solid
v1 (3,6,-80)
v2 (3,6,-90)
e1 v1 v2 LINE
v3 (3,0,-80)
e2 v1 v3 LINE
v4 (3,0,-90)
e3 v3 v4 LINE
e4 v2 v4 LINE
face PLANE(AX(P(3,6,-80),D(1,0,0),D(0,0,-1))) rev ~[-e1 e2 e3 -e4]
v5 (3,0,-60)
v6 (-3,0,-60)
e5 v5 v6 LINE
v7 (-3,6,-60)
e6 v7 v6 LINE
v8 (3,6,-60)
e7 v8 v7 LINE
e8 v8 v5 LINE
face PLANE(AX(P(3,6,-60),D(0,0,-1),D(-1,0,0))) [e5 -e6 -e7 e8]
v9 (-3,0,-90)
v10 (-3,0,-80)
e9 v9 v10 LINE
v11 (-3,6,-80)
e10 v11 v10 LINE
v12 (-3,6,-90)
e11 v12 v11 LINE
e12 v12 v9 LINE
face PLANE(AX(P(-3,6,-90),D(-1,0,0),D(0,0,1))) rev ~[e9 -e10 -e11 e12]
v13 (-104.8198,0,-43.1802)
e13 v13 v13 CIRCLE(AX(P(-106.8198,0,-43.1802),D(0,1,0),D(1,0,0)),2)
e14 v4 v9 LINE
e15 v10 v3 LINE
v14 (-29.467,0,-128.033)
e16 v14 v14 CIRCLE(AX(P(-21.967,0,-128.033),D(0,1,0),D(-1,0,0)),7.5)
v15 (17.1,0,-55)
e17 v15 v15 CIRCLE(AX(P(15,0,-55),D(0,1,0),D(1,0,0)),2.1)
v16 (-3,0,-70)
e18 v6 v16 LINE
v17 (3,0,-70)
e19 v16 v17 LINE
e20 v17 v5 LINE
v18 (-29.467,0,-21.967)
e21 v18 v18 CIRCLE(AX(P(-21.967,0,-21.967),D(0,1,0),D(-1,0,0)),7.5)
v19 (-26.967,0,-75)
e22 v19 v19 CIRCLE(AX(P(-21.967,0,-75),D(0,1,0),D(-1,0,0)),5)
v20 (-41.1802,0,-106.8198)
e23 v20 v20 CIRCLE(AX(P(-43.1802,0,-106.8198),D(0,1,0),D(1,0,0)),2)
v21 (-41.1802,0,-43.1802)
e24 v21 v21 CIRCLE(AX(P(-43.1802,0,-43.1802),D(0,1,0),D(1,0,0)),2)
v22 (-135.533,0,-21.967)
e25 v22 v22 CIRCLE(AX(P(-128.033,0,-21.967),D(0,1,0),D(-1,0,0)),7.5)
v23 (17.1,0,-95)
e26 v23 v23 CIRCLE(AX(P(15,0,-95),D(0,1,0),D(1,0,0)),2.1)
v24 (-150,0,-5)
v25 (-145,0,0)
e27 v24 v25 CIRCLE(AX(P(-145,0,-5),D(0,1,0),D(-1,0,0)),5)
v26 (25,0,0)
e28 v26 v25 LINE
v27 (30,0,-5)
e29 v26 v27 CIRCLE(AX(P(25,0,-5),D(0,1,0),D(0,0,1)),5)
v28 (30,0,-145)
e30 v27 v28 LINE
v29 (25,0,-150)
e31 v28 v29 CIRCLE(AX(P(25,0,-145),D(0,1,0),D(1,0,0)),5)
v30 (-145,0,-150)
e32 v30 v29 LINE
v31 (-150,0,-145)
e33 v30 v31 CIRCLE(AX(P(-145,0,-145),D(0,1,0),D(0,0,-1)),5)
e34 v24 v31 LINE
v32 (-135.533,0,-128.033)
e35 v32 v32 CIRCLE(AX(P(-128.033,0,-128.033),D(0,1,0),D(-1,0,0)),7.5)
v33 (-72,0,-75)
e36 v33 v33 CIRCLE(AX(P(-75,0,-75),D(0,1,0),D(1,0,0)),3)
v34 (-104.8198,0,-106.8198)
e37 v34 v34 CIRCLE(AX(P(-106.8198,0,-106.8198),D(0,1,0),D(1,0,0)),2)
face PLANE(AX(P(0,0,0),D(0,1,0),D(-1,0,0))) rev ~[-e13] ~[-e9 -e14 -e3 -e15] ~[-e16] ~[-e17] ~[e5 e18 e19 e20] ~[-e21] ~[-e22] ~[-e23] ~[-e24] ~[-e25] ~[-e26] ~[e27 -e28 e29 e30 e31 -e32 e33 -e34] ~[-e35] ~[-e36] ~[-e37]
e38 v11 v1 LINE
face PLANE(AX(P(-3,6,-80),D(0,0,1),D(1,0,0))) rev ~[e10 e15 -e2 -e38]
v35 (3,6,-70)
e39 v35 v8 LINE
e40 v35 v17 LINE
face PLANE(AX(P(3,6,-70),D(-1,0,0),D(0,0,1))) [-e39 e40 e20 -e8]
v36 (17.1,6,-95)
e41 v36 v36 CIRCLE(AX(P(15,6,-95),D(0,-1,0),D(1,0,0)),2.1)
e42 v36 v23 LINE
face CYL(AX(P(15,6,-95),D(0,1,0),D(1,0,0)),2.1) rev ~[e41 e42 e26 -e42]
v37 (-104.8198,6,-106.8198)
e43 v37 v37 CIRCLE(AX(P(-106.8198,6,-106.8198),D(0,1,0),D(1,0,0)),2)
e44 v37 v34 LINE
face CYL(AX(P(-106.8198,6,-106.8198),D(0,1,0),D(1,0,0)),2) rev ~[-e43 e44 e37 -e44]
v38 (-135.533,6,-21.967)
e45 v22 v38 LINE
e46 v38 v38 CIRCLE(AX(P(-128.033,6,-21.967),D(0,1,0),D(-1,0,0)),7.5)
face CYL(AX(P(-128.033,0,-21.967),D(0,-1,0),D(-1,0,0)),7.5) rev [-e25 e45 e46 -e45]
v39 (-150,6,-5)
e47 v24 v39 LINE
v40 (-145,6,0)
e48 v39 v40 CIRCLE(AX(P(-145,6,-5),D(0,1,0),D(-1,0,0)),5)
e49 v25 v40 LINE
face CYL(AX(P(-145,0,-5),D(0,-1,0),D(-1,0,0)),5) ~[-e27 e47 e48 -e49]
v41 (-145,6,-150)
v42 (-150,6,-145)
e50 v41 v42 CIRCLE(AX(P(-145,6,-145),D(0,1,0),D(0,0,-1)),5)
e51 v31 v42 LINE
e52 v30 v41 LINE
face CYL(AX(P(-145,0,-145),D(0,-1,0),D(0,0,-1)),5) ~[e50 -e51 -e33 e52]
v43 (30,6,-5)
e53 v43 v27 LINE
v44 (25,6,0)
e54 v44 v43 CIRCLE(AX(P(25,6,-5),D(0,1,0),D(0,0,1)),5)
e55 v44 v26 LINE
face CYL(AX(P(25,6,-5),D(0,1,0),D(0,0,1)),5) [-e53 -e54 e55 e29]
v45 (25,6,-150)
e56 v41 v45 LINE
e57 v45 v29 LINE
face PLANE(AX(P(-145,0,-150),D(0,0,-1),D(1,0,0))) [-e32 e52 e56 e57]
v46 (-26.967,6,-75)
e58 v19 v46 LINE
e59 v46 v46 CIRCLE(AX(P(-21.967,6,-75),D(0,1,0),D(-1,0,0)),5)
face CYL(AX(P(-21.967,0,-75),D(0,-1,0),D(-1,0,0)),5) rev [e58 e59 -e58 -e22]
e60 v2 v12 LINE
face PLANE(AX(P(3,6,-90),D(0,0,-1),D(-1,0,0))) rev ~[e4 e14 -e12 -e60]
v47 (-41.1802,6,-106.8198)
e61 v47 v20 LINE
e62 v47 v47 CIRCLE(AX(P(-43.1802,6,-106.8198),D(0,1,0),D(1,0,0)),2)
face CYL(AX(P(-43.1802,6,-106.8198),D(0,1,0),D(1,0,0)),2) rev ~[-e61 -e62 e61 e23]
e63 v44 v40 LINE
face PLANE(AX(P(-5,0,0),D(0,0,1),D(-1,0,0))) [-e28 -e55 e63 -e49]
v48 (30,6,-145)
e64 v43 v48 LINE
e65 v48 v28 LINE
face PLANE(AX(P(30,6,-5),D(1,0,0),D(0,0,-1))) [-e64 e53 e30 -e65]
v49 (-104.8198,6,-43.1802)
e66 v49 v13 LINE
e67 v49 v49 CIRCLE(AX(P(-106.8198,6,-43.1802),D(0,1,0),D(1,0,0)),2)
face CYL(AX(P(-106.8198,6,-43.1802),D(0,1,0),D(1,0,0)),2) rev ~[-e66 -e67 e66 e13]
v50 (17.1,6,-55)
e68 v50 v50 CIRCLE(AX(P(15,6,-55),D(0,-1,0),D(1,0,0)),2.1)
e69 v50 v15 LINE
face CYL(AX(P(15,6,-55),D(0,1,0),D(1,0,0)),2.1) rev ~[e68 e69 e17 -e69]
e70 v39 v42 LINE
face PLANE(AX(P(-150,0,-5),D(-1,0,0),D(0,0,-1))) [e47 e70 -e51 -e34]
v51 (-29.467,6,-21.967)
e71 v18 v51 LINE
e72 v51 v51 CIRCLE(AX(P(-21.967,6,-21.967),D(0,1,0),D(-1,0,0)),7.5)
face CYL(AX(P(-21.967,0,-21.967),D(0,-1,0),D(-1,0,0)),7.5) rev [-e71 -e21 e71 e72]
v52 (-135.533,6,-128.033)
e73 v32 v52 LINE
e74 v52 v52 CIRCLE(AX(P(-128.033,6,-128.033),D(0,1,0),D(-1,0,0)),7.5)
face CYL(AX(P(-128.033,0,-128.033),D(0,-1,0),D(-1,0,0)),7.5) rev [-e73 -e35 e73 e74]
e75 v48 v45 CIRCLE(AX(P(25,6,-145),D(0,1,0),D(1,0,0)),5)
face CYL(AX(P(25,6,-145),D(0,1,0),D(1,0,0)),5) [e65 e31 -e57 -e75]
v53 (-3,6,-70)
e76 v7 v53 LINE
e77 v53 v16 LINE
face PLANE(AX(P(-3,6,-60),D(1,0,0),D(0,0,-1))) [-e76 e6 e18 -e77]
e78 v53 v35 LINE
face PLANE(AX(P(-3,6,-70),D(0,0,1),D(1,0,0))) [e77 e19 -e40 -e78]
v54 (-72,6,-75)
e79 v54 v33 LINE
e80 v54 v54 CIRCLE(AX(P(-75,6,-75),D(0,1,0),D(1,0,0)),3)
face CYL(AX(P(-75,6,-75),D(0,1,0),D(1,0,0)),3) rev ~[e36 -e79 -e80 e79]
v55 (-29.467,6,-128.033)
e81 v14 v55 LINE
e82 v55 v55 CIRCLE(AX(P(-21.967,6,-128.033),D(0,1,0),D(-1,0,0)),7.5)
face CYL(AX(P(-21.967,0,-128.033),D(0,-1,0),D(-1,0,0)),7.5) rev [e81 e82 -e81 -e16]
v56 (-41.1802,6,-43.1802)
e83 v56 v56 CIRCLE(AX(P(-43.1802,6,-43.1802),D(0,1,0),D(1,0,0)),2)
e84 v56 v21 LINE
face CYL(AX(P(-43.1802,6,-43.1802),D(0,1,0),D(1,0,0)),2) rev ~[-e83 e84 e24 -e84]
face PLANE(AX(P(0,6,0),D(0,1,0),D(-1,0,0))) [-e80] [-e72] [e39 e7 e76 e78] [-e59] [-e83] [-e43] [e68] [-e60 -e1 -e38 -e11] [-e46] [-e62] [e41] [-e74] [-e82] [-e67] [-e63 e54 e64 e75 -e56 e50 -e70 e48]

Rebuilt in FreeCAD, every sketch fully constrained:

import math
import FreeCAD as App
import Part
import Sketcher
Q = App.Units.Quantity


def add_polygon(sketch, points):
    """Adds a closed chain of lines whose ends are joined by coincident constraints."""
    first, n = sketch.GeometryCount, len(points)
    for a, b in zip(points, points[1:] + points[:1]):
        sketch.addGeometry(Part.LineSegment(App.Vector(*a, 0), App.Vector(*b, 0)), False)
    for i in range(n):
        sketch.addConstraint(Sketcher.Constraint("Coincident", first + i, 2, first + (i + 1) % n, 1))

doc = App.newDocument("Part")
body = doc.addObject("PartDesign::Body", "Body")

sketch1 = body.newObject("Sketcher::SketchObject", "Sketch")
sketch1.AttachmentSupport = (doc.getObject("XZ_Plane"), [""])
sketch1.MapMode = "FlatFace"
sketch1.addGeometry(Part.LineSegment(App.Vector(-145, 0, 0), App.Vector(-5, 0, 0)), False)
sketch1.addGeometry(Part.ArcOfCircle(Part.Circle(App.Vector(-5, -5, 0), App.Vector(0, 0, 1), 5), math.radians(0), math.radians(90)), False)
sketch1.addGeometry(Part.LineSegment(App.Vector(0, -5, 0), App.Vector(0, -145, 0)), False)
sketch1.addGeometry(Part.ArcOfCircle(Part.Circle(App.Vector(-5, -145, 0), App.Vector(0, 0, 1), 5), math.radians(-90), math.radians(0)), False)
sketch1.addGeometry(Part.LineSegment(App.Vector(-5, -150, 0), App.Vector(-145, -150, 0)), False)
sketch1.addGeometry(Part.ArcOfCircle(Part.Circle(App.Vector(-145, -145, 0), App.Vector(0, 0, 1), 5), math.radians(180), math.radians(270)), False)
sketch1.addGeometry(Part.LineSegment(App.Vector(-150, -145, 0), App.Vector(-150, -5, 0)), False)
sketch1.addGeometry(Part.ArcOfCircle(Part.Circle(App.Vector(-145, -5, 0), App.Vector(0, 0, 1), 5), math.radians(90), math.radians(180)), False)
sketch1.addGeometry(Part.Circle(App.Vector(-21.967, -128.033, 0), App.Vector(0, 0, 1), 7.5), False)
sketch1.addGeometry(Part.Circle(App.Vector(-128.033, -128.033, 0), App.Vector(0, 0, 1), 7.5), False)
sketch1.addGeometry(Part.Circle(App.Vector(-21.967, -75, 0), App.Vector(0, 0, 1), 5), False)
sketch1.addGeometry(Part.Circle(App.Vector(-21.967, -21.967, 0), App.Vector(0, 0, 1), 7.5), False)
sketch1.addGeometry(Part.Circle(App.Vector(-128.033, -21.967, 0), App.Vector(0, 0, 1), 7.5), False)
sketch1.addConstraint(Sketcher.Constraint("Tangent", 0, 2, 1, 2))
sketch1.addConstraint(Sketcher.Constraint("Tangent", 1, 1, 2, 1))
sketch1.addConstraint(Sketcher.Constraint("Tangent", 2, 2, 3, 2))
sketch1.addConstraint(Sketcher.Constraint("Tangent", 3, 1, 4, 1))
sketch1.addConstraint(Sketcher.Constraint("Tangent", 4, 2, 5, 2))
sketch1.addConstraint(Sketcher.Constraint("Tangent", 5, 1, 6, 1))
sketch1.addConstraint(Sketcher.Constraint("Tangent", 6, 2, 7, 2))
sketch1.addConstraint(Sketcher.Constraint("Tangent", 7, 1, 0, 1))
sketch1.addConstraint(Sketcher.Constraint("Horizontal", 0))
sketch1.addConstraint(Sketcher.Constraint("Vertical", 2))
sketch1.addConstraint(Sketcher.Constraint("Horizontal", 4))
sketch1.addConstraint(Sketcher.Constraint("Vertical", 6))
sketch1.addConstraint(Sketcher.Constraint("Equal", 1, 3))
sketch1.addConstraint(Sketcher.Constraint("Equal", 3, 5))
sketch1.addConstraint(Sketcher.Constraint("Equal", 5, 7))
sketch1.addConstraint(Sketcher.Constraint("Equal", 8, 9))
sketch1.addConstraint(Sketcher.Constraint("Equal", 7, 10))
sketch1.addConstraint(Sketcher.Constraint("Equal", 9, 11))
sketch1.addConstraint(Sketcher.Constraint("Equal", 11, 12))
sketch1.addConstraint(Sketcher.Constraint("PointOnObject", 0, 2, -1))
sketch1.addConstraint(Sketcher.Constraint("PointOnObject", 1, 1, -2))
sketch1.addConstraint(Sketcher.Constraint("Horizontal", 8, 3, 9, 3))
sketch1.addConstraint(Sketcher.Constraint("Horizontal", 11, 3, 12, 3))
sketch1.addConstraint(Sketcher.Constraint("Vertical", 8, 3, 10, 3))
sketch1.addConstraint(Sketcher.Constraint("Vertical", 10, 3, 11, 3))
sketch1.addConstraint(Sketcher.Constraint("Vertical", 9, 3, 12, 3))
sketch1.addConstraint(Sketcher.Constraint("Equal", 4, 2))
sketch1.addConstraint(Sketcher.Constraint("Diameter", 8, Q("15 mm")))
sketch1.addConstraint(Sketcher.Constraint("Diameter", 10, Q("10 mm")))
sketch1.addConstraint(Sketcher.Constraint("DistanceY", 3, 1, -1, 1, Q("150 mm")))
sketch1.addConstraint(Sketcher.Constraint("DistanceY", 10, 3, -1, 1, Q("75 mm")))
sketch1.addConstraint(Sketcher.Constraint("DistanceX", 8, 3, -1, 1, Q("21.967 mm")))
sketch1.addConstraint(Sketcher.Constraint("DistanceY", 8, 3, -1, 1, Q("128.033 mm")))
sketch1.addConstraint(Sketcher.Constraint("DistanceX", 9, 3, -1, 1, Q("128.033 mm")))
sketch1.addConstraint(Sketcher.Constraint("DistanceY", 11, 3, -1, 1, Q("21.967 mm")))
pad1 = body.newObject("PartDesign::Pad", "Pad")
pad1.Profile = sketch1
pad1.Length = 6
pad1.Reversed = True

sketch2 = body.newObject("Sketcher::SketchObject", "Sketch001")
sketch2.AttachmentSupport = (doc.getObject("XZ_Plane"), [""])
sketch2.MapMode = "FlatFace"
sketch2.AttachmentOffset = App.Placement(App.Vector(0, 0, -6), App.Rotation())
sketch2.addGeometry(Part.Circle(App.Vector(-106.8198, -43.1802, 0), App.Vector(0, 0, 1), 2), False)
sketch2.addGeometry(Part.Circle(App.Vector(-106.8198, -106.8198, 0), App.Vector(0, 0, 1), 2), False)
sketch2.addGeometry(Part.Circle(App.Vector(-43.1802, -43.1802, 0), App.Vector(0, 0, 1), 2), False)
sketch2.addGeometry(Part.Circle(App.Vector(-43.1802, -106.8198, 0), App.Vector(0, 0, 1), 2), False)
sketch2.addGeometry(Part.Circle(App.Vector(-75, -75, 0), App.Vector(0, 0, 1), 3), False)
sketch2.addConstraint(Sketcher.Constraint("Equal", 0, 1))
sketch2.addConstraint(Sketcher.Constraint("Equal", 1, 2))
sketch2.addConstraint(Sketcher.Constraint("Equal", 2, 3))
sketch2.addConstraint(Sketcher.Constraint("Horizontal", 0, 3, 2, 3))
sketch2.addConstraint(Sketcher.Constraint("Horizontal", 1, 3, 3, 3))
sketch2.addConstraint(Sketcher.Constraint("Vertical", 0, 3, 1, 3))
sketch2.addConstraint(Sketcher.Constraint("Vertical", 2, 3, 3, 3))
sketch2.addConstraint(Sketcher.Constraint("Diameter", 0, Q("4 mm")))
sketch2.addConstraint(Sketcher.Constraint("Diameter", 4, Q("6 mm")))
sketch2.addConstraint(Sketcher.Constraint("DistanceX", 4, 3, -1, 1, Q("75 mm")))
sketch2.addConstraint(Sketcher.Constraint("DistanceY", 4, 3, -1, 1, Q("75 mm")))
sketch2.addConstraint(Sketcher.Constraint("DistanceX", 0, 3, -1, 1, Q("106.8198 mm")))
sketch2.addConstraint(Sketcher.Constraint("DistanceY", 0, 3, -1, 1, Q("43.1802 mm")))
sketch2.addConstraint(Sketcher.Constraint("DistanceY", 1, 3, -1, 1, Q("106.8198 mm")))
sketch2.addConstraint(Sketcher.Constraint("DistanceX", 2, 3, -1, 1, Q("43.1802 mm")))
pocket1 = body.newObject("PartDesign::Pocket", "Pocket")
pocket1.Profile = sketch2
pocket1.Length = 6
pocket1.Reversed = True

sketch3 = body.newObject("Sketcher::SketchObject", "Sketch002")
sketch3.AttachmentSupport = (doc.getObject("XZ_Plane"), [""])
sketch3.MapMode = "FlatFace"
sketch3.AttachmentOffset = App.Placement(App.Vector(0, 0, -6), App.Rotation())
sketch3.addGeometry(Part.LineSegment(App.Vector(-5, -150, 0), App.Vector(-5, 0, 0)), False)
sketch3.addGeometry(Part.LineSegment(App.Vector(-5, 0, 0), App.Vector(25, 0, 0)), False)
sketch3.addGeometry(Part.ArcOfCircle(Part.Circle(App.Vector(25, -5, 0), App.Vector(0, 0, 1), 5), math.radians(0), math.radians(90)), False)
sketch3.addGeometry(Part.LineSegment(App.Vector(30, -5, 0), App.Vector(30, -145, 0)), False)
sketch3.addGeometry(Part.ArcOfCircle(Part.Circle(App.Vector(25, -145, 0), App.Vector(0, 0, 1), 5), math.radians(-90), math.radians(0)), False)
sketch3.addGeometry(Part.LineSegment(App.Vector(25, -150, 0), App.Vector(-5, -150, 0)), False)
sketch3.addConstraint(Sketcher.Constraint("Coincident", 0, 2, 1, 1))
sketch3.addConstraint(Sketcher.Constraint("Tangent", 1, 2, 2, 2))
sketch3.addConstraint(Sketcher.Constraint("Tangent", 2, 1, 3, 1))
sketch3.addConstraint(Sketcher.Constraint("Tangent", 3, 2, 4, 2))
sketch3.addConstraint(Sketcher.Constraint("Tangent", 4, 1, 5, 1))
sketch3.addConstraint(Sketcher.Constraint("Coincident", 5, 2, 0, 1))
sketch3.addConstraint(Sketcher.Constraint("Vertical", 0))
sketch3.addConstraint(Sketcher.Constraint("Horizontal", 1))
sketch3.addConstraint(Sketcher.Constraint("Vertical", 3))
sketch3.addConstraint(Sketcher.Constraint("Horizontal", 5))
sketch3.addConstraint(Sketcher.Constraint("Equal", 2, 4))
sketch3.addConstraint(Sketcher.Constraint("PointOnObject", 0, 2, -1))
sketch3.addConstraint(Sketcher.Constraint("Radius", 2, Q("5 mm")))
sketch3.addConstraint(Sketcher.Constraint("DistanceY", 0, 1, 0, 2, Q("150 mm")))
sketch3.addConstraint(Sketcher.Constraint("DistanceX", 0, 2, -1, 1, Q("5 mm")))
sketch3.addConstraint(Sketcher.Constraint("DistanceX", 0, 2, 2, 1, Q("35 mm")))
pad2 = body.newObject("PartDesign::Pad", "Pad001")
pad2.Profile = sketch3
pad2.Length = 6

sketch4 = body.newObject("Sketcher::SketchObject", "Sketch003")
sketch4.AttachmentSupport = (doc.getObject("XZ_Plane"), [""])
sketch4.MapMode = "FlatFace"
sketch4.AttachmentOffset = App.Placement(App.Vector(0, 0, -6), App.Rotation())
add_polygon(sketch4, [(-3, -90), (-3, -80), (3, -80), (3, -90)])
add_polygon(sketch4, [(3, -70), (-3, -70), (-3, -60), (3, -60)])
sketch4.addGeometry(Part.Circle(App.Vector(15, -55, 0), App.Vector(0, 0, 1), 2.1), False)
sketch4.addGeometry(Part.Circle(App.Vector(15, -95, 0), App.Vector(0, 0, 1), 2.1), False)
sketch4.addConstraint(Sketcher.Constraint("Vertical", 0))
sketch4.addConstraint(Sketcher.Constraint("Horizontal", 1))
sketch4.addConstraint(Sketcher.Constraint("Vertical", 2))
sketch4.addConstraint(Sketcher.Constraint("Horizontal", 3))
sketch4.addConstraint(Sketcher.Constraint("Horizontal", 4))
sketch4.addConstraint(Sketcher.Constraint("Vertical", 5))
sketch4.addConstraint(Sketcher.Constraint("Horizontal", 6))
sketch4.addConstraint(Sketcher.Constraint("Vertical", 7))
sketch4.addConstraint(Sketcher.Constraint("Equal", 8, 9))
sketch4.addConstraint(Sketcher.Constraint("Vertical", 8, 3, 9, 3))
sketch4.addConstraint(Sketcher.Constraint("Vertical", 3, 2, 4, 2))
sketch4.addConstraint(Sketcher.Constraint("Vertical", 2, 2, 6, 2))
sketch4.addConstraint(Sketcher.Constraint("Equal", 2, 5))
sketch4.addConstraint(Sketcher.Constraint("Diameter", 8, Q("4.2 mm")))
sketch4.addConstraint(Sketcher.Constraint("DistanceX", 1, 1, 1, 2, Q("6 mm")))
sketch4.addConstraint(Sketcher.Constraint("DistanceY", 0, 1, 0, 2, Q("10 mm")))
sketch4.addConstraint(Sketcher.Constraint("DistanceY", 0, 2, 4, 2, Q("10 mm")))
sketch4.addConstraint(Sketcher.Constraint("DistanceX", -1, 1, 8, 3, Q("15 mm")))
sketch4.addConstraint(Sketcher.Constraint("DistanceY", 8, 3, -1, 1, Q("55 mm")))
sketch4.addConstraint(Sketcher.Constraint("DistanceY", 9, 3, -1, 1, Q("95 mm")))
sketch4.addConstraint(Sketcher.Constraint("DistanceX", 0, 2, -1, 1, Q("3 mm")))
sketch4.addConstraint(Sketcher.Constraint("DistanceY", 0, 2, -1, 1, Q("80 mm")))
pocket2 = body.newObject("PartDesign::Pocket", "Pocket001")
pocket2.Profile = sketch4
pocket2.Length = 6
pocket2.Reversed = True

doc.recompute()
